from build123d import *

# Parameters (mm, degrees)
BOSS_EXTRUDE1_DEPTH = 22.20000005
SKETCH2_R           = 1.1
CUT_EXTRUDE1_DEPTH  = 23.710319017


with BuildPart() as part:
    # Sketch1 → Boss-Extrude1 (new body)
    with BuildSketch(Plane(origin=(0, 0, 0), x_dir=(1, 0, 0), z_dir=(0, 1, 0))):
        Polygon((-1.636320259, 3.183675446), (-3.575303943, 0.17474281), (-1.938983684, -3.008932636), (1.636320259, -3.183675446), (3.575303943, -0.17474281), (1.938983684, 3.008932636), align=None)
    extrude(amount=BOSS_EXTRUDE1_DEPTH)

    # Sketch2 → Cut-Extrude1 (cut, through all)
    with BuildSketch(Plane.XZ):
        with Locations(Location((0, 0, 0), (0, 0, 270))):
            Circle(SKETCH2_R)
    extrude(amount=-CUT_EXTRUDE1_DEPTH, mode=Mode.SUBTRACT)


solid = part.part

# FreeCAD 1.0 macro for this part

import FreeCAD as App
import Part
import Sketcher

V = App.Vector
Q = App.Units.Quantity


def add_polygon(sketch, points):
    """Adds a closed chain of lines whose ends are joined by coincident constraints."""
    first, n = sketch.GeometryCount, len(points)
    for a, b in zip(points, points[1:] + points[:1]):
        sketch.addGeometry(Part.LineSegment(App.Vector(*a, 0), App.Vector(*b, 0)), False)
    for i in range(n):
        sketch.addConstraint(Sketcher.Constraint("Coincident", first + i, 2, first + (i + 1) % n, 1))

doc = App.newDocument("Part")
body = doc.addObject("PartDesign::Body", "Body")

# Sketch on XZ plane
sketch1 = body.newObject("Sketcher::SketchObject", "Sketch")
sketch1.AttachmentSupport = (doc.getObject("XZ_Plane"), [""])
sketch1.MapMode = "FlatFace"
add_polygon(sketch1, [(-1.63632, -3.183675), (-3.575304, -0.174743), (-1.938984, 3.008933), (1.63632, 3.183675), (3.575304, 0.174743), (1.938984, -3.008933)])  # lines 0-5
sketch1.addConstraint([
    Sketcher.Constraint("Symmetric", 0, 2, 3, 2, -1, 1),
    Sketcher.Constraint("Symmetric", 1, 2, 4, 2, -1, 1),
    Sketcher.Constraint("Symmetric", 2, 2, 5, 2, -1, 1),
    Sketcher.Constraint("Equal", 0, 1),
    Sketcher.Constraint("Equal", 1, 2),
    Sketcher.Constraint("Distance", 0, Q("3.579572 mm")),
    Sketcher.Constraint("DistanceX", -1, 1, 2, 2, Q("1.63632 mm")),
    Sketcher.Constraint("DistanceX", 0, 2, 1, 2, Q("1.63632 mm")),
    Sketcher.Constraint("DistanceY", 0, 2, 2, 2, Q("3.358418 mm")),
])
pad1 = body.newObject("PartDesign::Pad", "Pad")
pad1.Profile = sketch1
pad1.Length = 22.2
pad1.Reversed = True

# Sketch on XZ plane
sketch2 = body.newObject("Sketcher::SketchObject", "Sketch001")
sketch2.AttachmentSupport = (doc.getObject("XZ_Plane"), [""])
sketch2.MapMode = "FlatFace"
sketch2.addGeometry(Part.Circle(V(0, 0, 0), V(0, 0, 1), 1.1), False)
sketch2.addConstraint([
    Sketcher.Constraint("Coincident", 0, 3, -1, 1),
    Sketcher.Constraint("Diameter", 0, Q("2.2 mm")),
])
pocket1 = body.newObject("PartDesign::Pocket", "Pocket")
pocket1.Profile = sketch2
pocket1.Type = "ThroughAll"

doc.recompute()
